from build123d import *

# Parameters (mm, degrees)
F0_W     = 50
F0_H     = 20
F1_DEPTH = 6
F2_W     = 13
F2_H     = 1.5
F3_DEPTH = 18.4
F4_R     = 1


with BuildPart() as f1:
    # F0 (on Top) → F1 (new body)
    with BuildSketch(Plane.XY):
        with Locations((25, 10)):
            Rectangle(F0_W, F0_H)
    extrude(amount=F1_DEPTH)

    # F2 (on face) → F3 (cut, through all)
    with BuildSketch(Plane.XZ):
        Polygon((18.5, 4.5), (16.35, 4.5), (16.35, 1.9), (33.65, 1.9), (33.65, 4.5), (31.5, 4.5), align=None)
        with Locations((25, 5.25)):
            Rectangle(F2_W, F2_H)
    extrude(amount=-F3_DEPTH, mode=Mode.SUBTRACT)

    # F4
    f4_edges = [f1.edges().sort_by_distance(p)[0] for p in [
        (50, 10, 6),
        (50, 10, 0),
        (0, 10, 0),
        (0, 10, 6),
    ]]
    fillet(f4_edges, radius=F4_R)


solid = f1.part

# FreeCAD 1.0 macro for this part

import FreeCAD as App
import Part
import Sketcher

V = App.Vector


def edges_at(feature, points):
    """Names of the edges that pass closest to the given points."""
    edges = feature.Shape.Edges
    near = lambda p: min(range(len(edges)), key=lambda i: edges[i].distToShape(Part.Vertex(*p))[0])
    return sorted({f"Edge{near(p) + 1}" for p in points})


def add_polygon(sketch, points):
    """Adds a closed chain of lines whose ends are joined by coincident constraints."""
    first, n = sketch.GeometryCount, len(points)
    for a, b in zip(points, points[1:] + points[:1]):
        sketch.addGeometry(Part.LineSegment(App.Vector(*a, 0), App.Vector(*b, 0)), False)
    for i in range(n):
        sketch.addConstraint(Sketcher.Constraint("Coincident", first + i, 2, first + (i + 1) % n, 1))

doc = App.newDocument("Part")
body = doc.addObject("PartDesign::Body", "Body")

# Sketch on XY plane
sketch1 = body.newObject("Sketcher::SketchObject", "Sketch")
sketch1.AttachmentSupport = (doc.getObject("XY_Plane"), [""])
sketch1.MapMode = "FlatFace"
add_polygon(sketch1, [(0, 20), (0, 0), (50, 0), (50, 20)])  # lines 0-3
sketch1.addConstraint([
    Sketcher.Constraint("Vertical", 0),
    Sketcher.Constraint("Horizontal", 1),
    Sketcher.Constraint("Vertical", 2),
    Sketcher.Constraint("Horizontal", 3),
    Sketcher.Constraint("Coincident", 0, 2, -1, 1),
    Sketcher.Constraint("DistanceX", 1, 1, 1, 2, 50.0),
    Sketcher.Constraint("DistanceY", 0, 2, 0, 1, 20.0),
])
pad1 = body.newObject("PartDesign::Pad", "Pad")
pad1.Profile = sketch1
pad1.Length = 6

# Sketch on XZ plane
sketch2 = body.newObject("Sketcher::SketchObject", "Sketch001")
sketch2.AttachmentSupport = (doc.getObject("XZ_Plane"), [""])
sketch2.MapMode = "FlatFace"
add_polygon(sketch2, [(16.4, 4.5), (16.4, 1.9), (33.6, 1.9), (33.6, 4.5), (31.5, 4.5), (31.5, 6), (18.5, 6), (18.5, 4.5)])  # lines 0-7
sketch2.addConstraint([
    Sketcher.Constraint("Vertical", 0),
    Sketcher.Constraint("Horizontal", 1),
    Sketcher.Constraint("Vertical", 2),
    Sketcher.Constraint("Horizontal", 3),
    Sketcher.Constraint("Vertical", 4),
    Sketcher.Constraint("Horizontal", 5),
    Sketcher.Constraint("Vertical", 6),
    Sketcher.Constraint("Horizontal", 7),
    Sketcher.Constraint("Horizontal", 3, 2, 6, 2),
    Sketcher.Constraint("Equal", 3, 7),
    Sketcher.Constraint("DistanceX", 5, 2, 5, 1, 13.0),
    Sketcher.Constraint("DistanceX", 1, 1, 1, 2, 17.3),
    Sketcher.Constraint("DistanceY", 0, 2, 0, 1, 2.6),
    Sketcher.Constraint("DistanceY", 4, 1, 4, 2, 1.5),
    Sketcher.Constraint("DistanceY", -1, 1, 4, 2, 6.0),
    Sketcher.Constraint("DistanceX", -1, 1, 3, 2, 31.5),
])
pocket1 = body.newObject("PartDesign::Pocket", "Pocket")
pocket1.Profile = sketch2
pocket1.Length = 18.4
doc.recompute()

fillet = body.newObject("PartDesign::Fillet", "Fillet")
fillet.Base = (pocket1, edges_at(pocket1, [
    (50, 10, 6),
    (50, 10, 0),
    (0, 10, 0),
    (0, 10, 6),
]))
fillet.Radius = 1

doc.recompute()
